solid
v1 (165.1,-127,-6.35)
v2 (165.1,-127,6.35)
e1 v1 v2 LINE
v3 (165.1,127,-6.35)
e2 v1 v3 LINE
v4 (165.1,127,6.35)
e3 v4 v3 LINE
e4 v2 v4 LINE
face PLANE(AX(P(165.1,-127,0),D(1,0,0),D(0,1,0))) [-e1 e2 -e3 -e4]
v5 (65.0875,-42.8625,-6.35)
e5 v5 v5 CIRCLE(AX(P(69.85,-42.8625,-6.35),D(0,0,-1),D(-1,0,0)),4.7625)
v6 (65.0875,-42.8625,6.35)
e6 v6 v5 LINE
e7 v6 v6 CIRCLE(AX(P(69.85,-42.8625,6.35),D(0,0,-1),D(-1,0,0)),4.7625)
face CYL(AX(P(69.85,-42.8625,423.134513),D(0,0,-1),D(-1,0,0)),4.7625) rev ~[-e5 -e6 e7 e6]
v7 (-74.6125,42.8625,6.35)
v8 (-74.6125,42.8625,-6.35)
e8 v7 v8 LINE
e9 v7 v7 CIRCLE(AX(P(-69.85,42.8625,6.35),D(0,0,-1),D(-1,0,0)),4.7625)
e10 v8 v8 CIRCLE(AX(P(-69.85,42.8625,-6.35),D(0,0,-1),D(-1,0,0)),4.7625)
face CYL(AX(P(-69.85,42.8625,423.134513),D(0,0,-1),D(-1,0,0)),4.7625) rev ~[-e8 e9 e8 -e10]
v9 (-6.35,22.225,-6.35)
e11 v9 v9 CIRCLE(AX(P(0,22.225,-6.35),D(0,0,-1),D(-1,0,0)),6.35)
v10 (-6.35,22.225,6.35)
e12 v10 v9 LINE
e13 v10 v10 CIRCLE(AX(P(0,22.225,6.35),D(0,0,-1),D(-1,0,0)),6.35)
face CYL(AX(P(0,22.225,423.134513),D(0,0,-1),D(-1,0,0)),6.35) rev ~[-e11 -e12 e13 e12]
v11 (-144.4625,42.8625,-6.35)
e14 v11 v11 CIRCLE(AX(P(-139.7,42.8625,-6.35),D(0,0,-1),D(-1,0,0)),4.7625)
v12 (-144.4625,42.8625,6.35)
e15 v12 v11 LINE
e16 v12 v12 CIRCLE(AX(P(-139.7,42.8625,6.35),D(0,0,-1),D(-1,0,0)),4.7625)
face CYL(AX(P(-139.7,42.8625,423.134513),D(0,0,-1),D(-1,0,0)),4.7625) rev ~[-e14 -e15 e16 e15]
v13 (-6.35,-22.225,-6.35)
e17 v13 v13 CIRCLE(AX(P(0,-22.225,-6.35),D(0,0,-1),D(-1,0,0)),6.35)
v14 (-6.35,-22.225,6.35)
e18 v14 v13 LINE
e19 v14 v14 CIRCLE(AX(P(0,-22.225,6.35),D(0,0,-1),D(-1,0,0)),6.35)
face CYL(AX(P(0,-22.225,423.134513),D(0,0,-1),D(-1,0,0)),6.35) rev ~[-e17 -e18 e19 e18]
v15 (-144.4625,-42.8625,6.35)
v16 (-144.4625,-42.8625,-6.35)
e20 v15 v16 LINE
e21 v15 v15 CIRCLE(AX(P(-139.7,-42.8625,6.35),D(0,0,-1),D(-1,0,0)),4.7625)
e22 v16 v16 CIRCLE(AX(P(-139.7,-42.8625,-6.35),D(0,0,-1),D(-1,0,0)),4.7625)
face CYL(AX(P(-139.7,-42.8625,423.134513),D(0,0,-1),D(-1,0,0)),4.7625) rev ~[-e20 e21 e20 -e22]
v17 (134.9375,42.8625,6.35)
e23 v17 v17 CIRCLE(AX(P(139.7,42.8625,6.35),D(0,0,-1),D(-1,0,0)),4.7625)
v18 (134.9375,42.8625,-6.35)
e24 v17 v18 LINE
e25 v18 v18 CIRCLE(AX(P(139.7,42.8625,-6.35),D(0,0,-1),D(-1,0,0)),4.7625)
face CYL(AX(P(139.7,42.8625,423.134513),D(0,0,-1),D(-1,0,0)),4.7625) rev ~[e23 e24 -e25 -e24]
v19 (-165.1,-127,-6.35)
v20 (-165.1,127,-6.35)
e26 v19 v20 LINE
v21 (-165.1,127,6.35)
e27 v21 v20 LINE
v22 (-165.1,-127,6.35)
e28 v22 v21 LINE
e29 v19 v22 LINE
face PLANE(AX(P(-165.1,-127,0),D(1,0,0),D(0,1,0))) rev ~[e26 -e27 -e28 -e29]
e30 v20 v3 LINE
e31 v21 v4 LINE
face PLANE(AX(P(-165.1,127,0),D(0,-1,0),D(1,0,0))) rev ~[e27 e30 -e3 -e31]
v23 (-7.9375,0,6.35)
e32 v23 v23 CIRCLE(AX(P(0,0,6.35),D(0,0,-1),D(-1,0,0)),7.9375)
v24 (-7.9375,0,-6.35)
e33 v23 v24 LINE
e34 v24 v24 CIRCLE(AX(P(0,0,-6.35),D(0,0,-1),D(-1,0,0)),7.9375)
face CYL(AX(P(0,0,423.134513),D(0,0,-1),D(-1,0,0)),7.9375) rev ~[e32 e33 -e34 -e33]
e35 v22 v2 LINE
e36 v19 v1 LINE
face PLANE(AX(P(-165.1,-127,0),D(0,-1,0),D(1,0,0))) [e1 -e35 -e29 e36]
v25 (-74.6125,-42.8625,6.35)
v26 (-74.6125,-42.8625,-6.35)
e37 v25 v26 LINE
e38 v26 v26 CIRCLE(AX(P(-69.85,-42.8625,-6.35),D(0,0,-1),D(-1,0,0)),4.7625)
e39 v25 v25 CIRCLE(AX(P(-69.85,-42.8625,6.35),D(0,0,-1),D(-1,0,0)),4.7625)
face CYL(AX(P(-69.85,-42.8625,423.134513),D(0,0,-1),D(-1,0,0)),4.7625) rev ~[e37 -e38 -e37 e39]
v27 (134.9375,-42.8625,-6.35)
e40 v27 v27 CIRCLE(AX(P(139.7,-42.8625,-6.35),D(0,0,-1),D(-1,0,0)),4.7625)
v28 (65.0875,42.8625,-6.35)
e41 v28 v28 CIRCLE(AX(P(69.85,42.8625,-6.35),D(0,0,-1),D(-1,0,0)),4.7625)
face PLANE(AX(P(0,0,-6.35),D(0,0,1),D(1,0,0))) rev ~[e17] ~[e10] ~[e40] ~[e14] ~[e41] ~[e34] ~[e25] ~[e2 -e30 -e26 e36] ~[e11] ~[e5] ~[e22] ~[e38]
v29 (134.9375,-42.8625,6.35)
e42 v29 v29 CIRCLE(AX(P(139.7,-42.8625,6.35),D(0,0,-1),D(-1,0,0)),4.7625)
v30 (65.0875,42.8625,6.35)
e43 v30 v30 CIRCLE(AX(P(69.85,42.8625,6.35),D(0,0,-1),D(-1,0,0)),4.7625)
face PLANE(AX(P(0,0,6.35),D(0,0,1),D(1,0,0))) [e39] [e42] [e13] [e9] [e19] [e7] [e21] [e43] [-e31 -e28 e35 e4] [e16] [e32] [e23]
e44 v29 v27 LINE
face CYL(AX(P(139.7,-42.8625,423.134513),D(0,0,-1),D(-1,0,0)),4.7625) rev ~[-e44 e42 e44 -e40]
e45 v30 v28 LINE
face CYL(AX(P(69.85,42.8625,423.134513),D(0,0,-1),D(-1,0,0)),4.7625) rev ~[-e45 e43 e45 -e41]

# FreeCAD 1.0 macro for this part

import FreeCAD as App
import Part
import Sketcher
Q = App.Units.Quantity


def add_polygon(sketch, points):
    """Adds a closed chain of lines whose ends are joined by coincident constraints."""
    first, n = sketch.GeometryCount, len(points)
    for a, b in zip(points, points[1:] + points[:1]):
        sketch.addGeometry(Part.LineSegment(App.Vector(*a, 0), App.Vector(*b, 0)), False)
    for i in range(n):
        sketch.addConstraint(Sketcher.Constraint("Coincident", first + i, 2, first + (i + 1) % n, 1))

doc = App.newDocument("Part")
body = doc.addObject("PartDesign::Body", "Body")

# Sketch on XY plane
sketch1 = body.newObject("Sketcher::SketchObject", "Sketch")
sketch1.AttachmentSupport = (doc.getObject("XY_Plane"), [""])
sketch1.MapMode = "FlatFace"
add_polygon(sketch1, [(-165, 127), (-165, -127), (165, -127), (165, 127)])  # lines 0-3
sketch1.addConstraint(Sketcher.Constraint("Vertical", 0))
sketch1.addConstraint(Sketcher.Constraint("Horizontal", 1))
sketch1.addConstraint(Sketcher.Constraint("Vertical", 2))
sketch1.addConstraint(Sketcher.Constraint("Horizontal", 3))
sketch1.addConstraint(Sketcher.Constraint("Symmetric", 0, 2, 2, 2, -1, 1))
sketch1.addConstraint(Sketcher.Constraint("DistanceX", 1, 1, 1, 2, Q("13 in")))
sketch1.addConstraint(Sketcher.Constraint("DistanceY", 0, 2, 0, 1, Q("10 in")))
pad1 = body.newObject("PartDesign::Pad", "Pad")
pad1.Profile = sketch1
pad1.Length = Q("0.5 in")
pad1.Midplane = True

# Sketch on XY plane
sketch2 = body.newObject("Sketcher::SketchObject", "Sketch001")
sketch2.AttachmentSupport = (doc.getObject("XY_Plane"), [""])
sketch2.MapMode = "FlatFace"
sketch2.AttachmentOffset = App.Placement(App.Vector(0, 0, 0.25 * 25.4), App.Rotation())
sketch2.addGeometry(Part.Circle(App.Vector(0, 22, 0), App.Vector(0, 0, 1), 6), False)
sketch2.addGeometry(Part.Circle(App.Vector(0, -22, 0), App.Vector(0, 0, 1), 6), False)
sketch2.addConstraint(Sketcher.Constraint("Equal", 0, 1))
sketch2.addConstraint(Sketcher.Constraint("Symmetric", 0, 3, 1, 3, -1, 1))
sketch2.addConstraint(Sketcher.Constraint("PointOnObject", 0, 3, -2))
sketch2.addConstraint(Sketcher.Constraint("Diameter", 0, Q("0.5 in")))
sketch2.addConstraint(Sketcher.Constraint("DistanceY", 1, 3, 0, 3, Q("1.75 in")))
doc.recompute()
hole = body.newObject("PartDesign::Hole", "Hole")
hole.Profile = sketch2
hole.ThreadType = "None"
hole.Diameter = Q("0.5 in")
hole.DepthType = "ThroughAll"

# Sketch on XY plane
sketch3 = body.newObject("Sketcher::SketchObject", "Sketch002")
sketch3.AttachmentSupport = (doc.getObject("XY_Plane"), [""])
sketch3.MapMode = "FlatFace"
sketch3.AttachmentOffset = App.Placement(App.Vector(0, 0, 0.25 * 25.4), App.Rotation())
sketch3.addGeometry(Part.Circle(App.Vector(0, 0, 0), App.Vector(0, 0, 1), 8), False)
sketch3.addConstraint(Sketcher.Constraint("Coincident", 0, 3, -1, 1))
sketch3.addConstraint(Sketcher.Constraint("Diameter", 0, Q("0.625 in")))
doc.recompute()
hole2 = body.newObject("PartDesign::Hole", "Hole001")
hole2.Profile = sketch3
hole2.ThreadType = "None"
hole2.Diameter = Q("0.625 in")
hole2.DepthType = "ThroughAll"

# Sketch on XY plane
sketch4 = body.newObject("Sketcher::SketchObject", "Sketch003")
sketch4.AttachmentSupport = (doc.getObject("XY_Plane"), [""])
sketch4.MapMode = "FlatFace"
sketch4.AttachmentOffset = App.Placement(App.Vector(0, 0, 0.25 * 25.4), App.Rotation())
sketch4.addGeometry(Part.Circle(App.Vector(-69.8, 42.9, 0), App.Vector(0, 0, 1), 4.8), False)
sketch4.addGeometry(Part.Circle(App.Vector(-139.7, 42.9, 0), App.Vector(0, 0, 1), 4.8), False)
sketch4.addGeometry(Part.Circle(App.Vector(-139.7, -42.9, 0), App.Vector(0, 0, 1), 4.8), False)
sketch4.addGeometry(Part.Circle(App.Vector(-69.8, -42.9, 0), App.Vector(0, 0, 1), 4.8), False)
sketch4.addGeometry(Part.Circle(App.Vector(69.8, 42.9, 0), App.Vector(0, 0, 1), 4.8), False)
sketch4.addGeometry(Part.Circle(App.Vector(139.7, 42.9, 0), App.Vector(0, 0, 1), 4.8), False)
sketch4.addGeometry(Part.Circle(App.Vector(139.7, -42.9, 0), App.Vector(0, 0, 1), 4.8), False)
sketch4.addGeometry(Part.Circle(App.Vector(69.8, -42.9, 0), App.Vector(0, 0, 1), 4.8), False)
sketch4.addConstraint(Sketcher.Constraint("Equal", 0, 1))
sketch4.addConstraint(Sketcher.Constraint("Equal", 1, 2))
sketch4.addConstraint(Sketcher.Constraint("Equal", 2, 3))
sketch4.addConstraint(Sketcher.Constraint("Equal", 3, 4))
sketch4.addConstraint(Sketcher.Constraint("Equal", 4, 5))
sketch4.addConstraint(Sketcher.Constraint("Equal", 5, 6))
sketch4.addConstraint(Sketcher.Constraint("Equal", 6, 7))
sketch4.addConstraint(Sketcher.Constraint("Symmetric", 3, 3, 4, 3, -1, 1))
sketch4.addConstraint(Sketcher.Constraint("Symmetric", 2, 3, 5, 3, -1, 1))
sketch4.addConstraint(Sketcher.Constraint("Symmetric", 1, 3, 6, 3, -1, 1))
sketch4.addConstraint(Sketcher.Constraint("Symmetric", 0, 3, 7, 3, -1, 1))
sketch4.addConstraint(Sketcher.Constraint("Symmetric", 0, 3, 4, 3, -2))
sketch4.addConstraint(Sketcher.Constraint("Symmetric", 1, 3, 5, 3, -2))
sketch4.addConstraint(Sketcher.Constraint("Horizontal", 0, 3, 1, 3))
sketch4.addConstraint(Sketcher.Constraint("Diameter", 0, Q("0.375 in")))
sketch4.addConstraint(Sketcher.Constraint("DistanceX", 1, 3, 5, 3, Q("11 in")))
sketch4.addConstraint(Sketcher.Constraint("DistanceX", 0, 3, 4, 3, Q("5.5 in")))
sketch4.addConstraint(Sketcher.Constraint("DistanceY", -1, 1, 0, 3, Q("1.6875 in")))
doc.recompute()
hole3 = body.newObject("PartDesign::Hole", "Hole002")
hole3.Profile = sketch4
hole3.ThreadType = "None"
hole3.Diameter = Q("0.375 in")
hole3.DepthType = "ThroughAll"

doc.recompute()
